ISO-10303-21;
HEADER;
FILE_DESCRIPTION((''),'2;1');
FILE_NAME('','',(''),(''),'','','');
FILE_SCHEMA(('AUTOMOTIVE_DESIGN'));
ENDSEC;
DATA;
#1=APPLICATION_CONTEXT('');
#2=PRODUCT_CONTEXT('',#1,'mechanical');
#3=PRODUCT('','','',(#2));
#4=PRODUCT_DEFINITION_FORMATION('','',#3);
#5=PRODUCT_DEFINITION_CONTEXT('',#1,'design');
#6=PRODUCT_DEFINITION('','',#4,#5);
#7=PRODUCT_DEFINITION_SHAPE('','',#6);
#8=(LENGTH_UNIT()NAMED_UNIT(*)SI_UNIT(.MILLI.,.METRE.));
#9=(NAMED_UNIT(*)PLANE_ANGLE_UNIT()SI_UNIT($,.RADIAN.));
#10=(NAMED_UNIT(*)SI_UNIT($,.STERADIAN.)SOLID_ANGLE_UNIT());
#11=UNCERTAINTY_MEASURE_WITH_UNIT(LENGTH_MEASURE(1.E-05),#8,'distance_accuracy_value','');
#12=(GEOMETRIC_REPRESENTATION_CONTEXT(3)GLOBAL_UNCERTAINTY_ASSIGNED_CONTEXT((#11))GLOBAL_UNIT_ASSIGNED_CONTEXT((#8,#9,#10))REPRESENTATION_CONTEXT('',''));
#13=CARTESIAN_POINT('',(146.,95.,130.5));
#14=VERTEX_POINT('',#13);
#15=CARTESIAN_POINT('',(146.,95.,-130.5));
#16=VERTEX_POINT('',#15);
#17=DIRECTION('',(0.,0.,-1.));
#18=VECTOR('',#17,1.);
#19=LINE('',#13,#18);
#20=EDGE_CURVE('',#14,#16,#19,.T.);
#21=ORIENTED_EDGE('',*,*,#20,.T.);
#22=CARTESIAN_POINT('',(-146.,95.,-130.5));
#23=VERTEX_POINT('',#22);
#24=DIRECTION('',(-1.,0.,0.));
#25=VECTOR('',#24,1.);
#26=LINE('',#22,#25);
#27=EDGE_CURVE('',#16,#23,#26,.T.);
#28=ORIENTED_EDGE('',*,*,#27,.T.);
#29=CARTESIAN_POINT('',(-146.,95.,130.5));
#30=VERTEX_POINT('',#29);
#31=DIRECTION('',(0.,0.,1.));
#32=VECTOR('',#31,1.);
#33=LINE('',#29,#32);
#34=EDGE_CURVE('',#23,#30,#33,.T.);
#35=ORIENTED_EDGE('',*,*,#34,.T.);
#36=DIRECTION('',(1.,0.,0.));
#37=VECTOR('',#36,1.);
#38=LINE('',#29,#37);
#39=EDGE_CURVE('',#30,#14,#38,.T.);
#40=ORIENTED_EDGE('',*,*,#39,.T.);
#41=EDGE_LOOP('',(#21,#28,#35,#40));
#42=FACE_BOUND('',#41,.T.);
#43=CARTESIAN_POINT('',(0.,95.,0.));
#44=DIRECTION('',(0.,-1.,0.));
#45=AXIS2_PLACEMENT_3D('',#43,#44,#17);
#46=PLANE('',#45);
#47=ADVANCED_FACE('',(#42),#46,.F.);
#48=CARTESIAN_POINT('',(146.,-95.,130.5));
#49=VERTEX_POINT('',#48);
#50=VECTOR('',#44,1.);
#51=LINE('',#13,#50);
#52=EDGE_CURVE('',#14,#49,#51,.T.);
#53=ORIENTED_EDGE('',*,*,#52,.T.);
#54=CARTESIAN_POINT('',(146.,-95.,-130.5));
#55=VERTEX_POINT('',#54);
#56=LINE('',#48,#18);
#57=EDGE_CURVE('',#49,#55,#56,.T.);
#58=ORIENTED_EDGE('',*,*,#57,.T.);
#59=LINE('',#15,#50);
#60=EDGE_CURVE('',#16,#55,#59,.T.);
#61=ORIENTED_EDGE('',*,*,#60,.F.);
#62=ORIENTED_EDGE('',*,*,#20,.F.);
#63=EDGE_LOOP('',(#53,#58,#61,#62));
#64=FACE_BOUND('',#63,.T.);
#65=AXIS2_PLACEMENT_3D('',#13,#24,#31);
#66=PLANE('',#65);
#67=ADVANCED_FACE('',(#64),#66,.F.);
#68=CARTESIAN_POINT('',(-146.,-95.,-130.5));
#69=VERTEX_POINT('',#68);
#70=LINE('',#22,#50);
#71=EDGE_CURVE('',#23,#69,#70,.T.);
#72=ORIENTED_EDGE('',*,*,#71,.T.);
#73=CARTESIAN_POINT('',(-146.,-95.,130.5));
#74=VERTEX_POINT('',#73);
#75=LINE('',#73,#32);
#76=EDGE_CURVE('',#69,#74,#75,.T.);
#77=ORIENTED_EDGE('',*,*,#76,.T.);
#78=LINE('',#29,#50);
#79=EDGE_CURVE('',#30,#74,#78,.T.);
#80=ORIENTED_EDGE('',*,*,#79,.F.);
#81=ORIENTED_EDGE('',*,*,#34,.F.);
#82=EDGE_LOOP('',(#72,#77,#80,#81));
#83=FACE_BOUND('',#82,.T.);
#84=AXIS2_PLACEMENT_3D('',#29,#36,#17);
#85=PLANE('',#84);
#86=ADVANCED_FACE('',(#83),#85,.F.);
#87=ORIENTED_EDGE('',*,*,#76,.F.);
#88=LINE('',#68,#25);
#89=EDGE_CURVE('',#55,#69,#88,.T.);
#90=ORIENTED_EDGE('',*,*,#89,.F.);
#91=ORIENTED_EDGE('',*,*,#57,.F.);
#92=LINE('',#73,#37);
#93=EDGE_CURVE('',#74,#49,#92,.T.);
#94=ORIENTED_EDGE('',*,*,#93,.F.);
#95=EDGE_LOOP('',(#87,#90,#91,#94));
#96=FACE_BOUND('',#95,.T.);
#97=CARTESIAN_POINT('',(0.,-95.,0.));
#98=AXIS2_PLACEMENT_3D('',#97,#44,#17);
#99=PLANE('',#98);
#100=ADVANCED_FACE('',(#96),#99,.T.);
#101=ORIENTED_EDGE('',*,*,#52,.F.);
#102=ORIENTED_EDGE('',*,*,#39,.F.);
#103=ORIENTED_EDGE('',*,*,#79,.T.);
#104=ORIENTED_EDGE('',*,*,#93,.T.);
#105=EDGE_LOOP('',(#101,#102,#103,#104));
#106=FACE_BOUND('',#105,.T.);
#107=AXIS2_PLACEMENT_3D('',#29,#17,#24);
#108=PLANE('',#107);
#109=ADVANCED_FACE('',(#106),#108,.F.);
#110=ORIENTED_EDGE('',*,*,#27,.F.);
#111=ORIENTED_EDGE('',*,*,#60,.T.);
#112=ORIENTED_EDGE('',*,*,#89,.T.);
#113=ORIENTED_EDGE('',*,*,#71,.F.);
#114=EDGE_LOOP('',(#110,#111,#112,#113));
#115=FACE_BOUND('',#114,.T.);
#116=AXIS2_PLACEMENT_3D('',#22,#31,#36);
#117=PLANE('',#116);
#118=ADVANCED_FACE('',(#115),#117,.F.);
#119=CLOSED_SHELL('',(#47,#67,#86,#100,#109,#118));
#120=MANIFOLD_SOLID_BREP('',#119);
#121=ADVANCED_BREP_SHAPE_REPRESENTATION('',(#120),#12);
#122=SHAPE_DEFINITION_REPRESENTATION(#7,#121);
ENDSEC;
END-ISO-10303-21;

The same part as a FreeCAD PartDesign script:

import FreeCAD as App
import Part
import Sketcher
Q = App.Units.Quantity

doc = App.newDocument("Part")
body = doc.addObject("PartDesign::Body", "Body")

# Sketch on XZ plane
sketch1 = body.newObject("Sketcher::SketchObject", "Sketch")
sketch1.AttachmentSupport = (doc.getObject("XZ_Plane"), [""])
sketch1.MapMode = "FlatFace"
sketch1.addGeometry([
    Part.LineSegment(App.Vector(-146, -130, 0), App.Vector(-146, 130, 0)),
    Part.LineSegment(App.Vector(-146, 130, 0), App.Vector(146, 130, 0)),
    Part.LineSegment(App.Vector(146, 130, 0), App.Vector(146, -130, 0)),
    Part.LineSegment(App.Vector(146, -130, 0), App.Vector(-146, -130, 0)),
], False)
sketch1.addConstraint([
    Sketcher.Constraint("Coincident", 0, 2, 1, 1),
    Sketcher.Constraint("Coincident", 1, 2, 2, 1),
    Sketcher.Constraint("Coincident", 2, 2, 3, 1),
    Sketcher.Constraint("Coincident", 3, 2, 0, 1),
    Sketcher.Constraint("Vertical", 0),
    Sketcher.Constraint("Horizontal", 1),
    Sketcher.Constraint("Vertical", 2),
    Sketcher.Constraint("Horizontal", 3),
    Sketcher.Constraint("Symmetric", 0, 2, 2, 2, -1, 1),
    Sketcher.Constraint("DistanceX", 1, 1, 1, 2, Q("292 mm")),
    Sketcher.Constraint("DistanceY", 0, 1, 0, 2, Q("261 mm")),
])
pad1 = body.newObject("PartDesign::Pad", "Pad")
pad1.Profile = sketch1
pad1.Length = 190
pad1.Midplane = True

doc.recompute()
